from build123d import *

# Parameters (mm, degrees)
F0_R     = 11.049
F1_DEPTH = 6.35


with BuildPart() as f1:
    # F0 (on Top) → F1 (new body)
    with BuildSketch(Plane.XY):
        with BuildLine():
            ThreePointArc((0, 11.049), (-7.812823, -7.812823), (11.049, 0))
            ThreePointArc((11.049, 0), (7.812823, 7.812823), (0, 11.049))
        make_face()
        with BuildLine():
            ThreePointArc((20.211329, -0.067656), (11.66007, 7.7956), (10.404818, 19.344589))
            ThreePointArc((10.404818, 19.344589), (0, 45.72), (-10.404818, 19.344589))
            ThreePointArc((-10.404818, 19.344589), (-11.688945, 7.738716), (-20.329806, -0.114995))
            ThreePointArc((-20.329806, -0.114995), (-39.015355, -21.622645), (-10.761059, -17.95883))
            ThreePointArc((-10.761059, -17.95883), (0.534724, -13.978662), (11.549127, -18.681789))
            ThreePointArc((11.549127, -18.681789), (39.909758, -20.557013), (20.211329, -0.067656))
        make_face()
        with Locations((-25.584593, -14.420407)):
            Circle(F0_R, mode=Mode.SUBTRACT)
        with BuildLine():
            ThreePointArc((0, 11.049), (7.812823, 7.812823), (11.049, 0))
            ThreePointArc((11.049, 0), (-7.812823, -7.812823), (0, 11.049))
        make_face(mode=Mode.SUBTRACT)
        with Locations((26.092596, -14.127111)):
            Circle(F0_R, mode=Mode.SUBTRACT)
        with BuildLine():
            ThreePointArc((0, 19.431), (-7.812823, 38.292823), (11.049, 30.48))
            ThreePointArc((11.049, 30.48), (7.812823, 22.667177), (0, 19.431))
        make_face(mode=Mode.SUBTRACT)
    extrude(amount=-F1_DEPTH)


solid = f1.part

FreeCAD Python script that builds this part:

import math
import FreeCAD as App
import Part
import Sketcher

V = App.Vector
Q = App.Units.Quantity

doc = App.newDocument("Part")
body = doc.addObject("PartDesign::Body", "Body")

sketch1 = body.newObject("Sketcher::SketchObject", "Sketch")
sketch1.AttachmentSupport = (doc.getObject("XY_Plane"), [""])
sketch1.MapMode = "FlatFace"
sketch1.addGeometry(Part.ArcOfCircle(Part.Circle(V(26.396453, 15.239998, 0), V(0, 0, 1), 16.509998), math.radians(165.604583), math.radians(247.998618)), False)
sketch1.addGeometry(Part.ArcOfCircle(Part.Circle(V(0, 30.48, 0), V(0, 0, 1), 15.24), math.radians(-46.94259), math.radians(226.94259)), False)
sketch1.addGeometry(Part.ArcOfCircle(Part.Circle(V(-26.396454, 15.24, 0), V(0, 0, 1), 16.509999), math.radians(-68.44138), math.radians(14.395412)), False)
sketch1.addGeometry(Part.ArcOfCircle(Part.Circle(V(-25.584593, -14.420407, 0), V(0, 0, 1), 15.24), math.radians(69.830272), math.radians(346.574549)), False)
sketch1.addGeometry(Part.ArcOfCircle(Part.Circle(V(0.000001, -30.480002, 0), V(0, 0, 1), 16.510002), math.radians(45.61125), math.radians(130.676722)), False)
sketch1.addGeometry(Part.ArcOfCircle(Part.Circle(V(26.092596, -14.127111, 0), V(0, 0, 1), 15.24), math.radians(-162.610653), math.radians(112.700242)), False)
sketch1.addGeometry(Part.Circle(V(-25.584593, -14.420407, 0), V(0, 0, 1), 11.049), False)
sketch1.addGeometry(Part.ArcOfCircle(Part.Circle(V(0, 0, 0), V(0, 0, 1), 11.049), math.radians(89.999999), math.radians(360.000001)), False)
sketch1.addGeometry(Part.ArcOfCircle(Part.Circle(V(0.000001, 0.000001, 0), V(0, 0, 1), 11.048999), math.radians(-0.000003), math.radians(90.000003)), False)
sketch1.addGeometry(Part.Circle(V(26.092596, -14.127111, 0), V(0, 0, 1), 11.049), False)
sketch1.addGeometry(Part.ArcOfCircle(Part.Circle(V(0.000001, 30.479999, 0), V(0, 0, 1), 11.048999), math.radians(-90.000003), math.radians(0.000003)), False)
sketch1.addGeometry(Part.ArcOfCircle(Part.Circle(V(0, 30.48, 0), V(0, 0, 1), 11.049), math.radians(-0.000001), math.radians(270.000001)), False)
sketch1.addConstraint(Sketcher.Constraint("Coincident", 0, 1, 1, 1))
sketch1.addConstraint(Sketcher.Constraint("Coincident", 1, 2, 2, 2))
sketch1.addConstraint(Sketcher.Constraint("Coincident", 2, 1, 3, 1))
sketch1.addConstraint(Sketcher.Constraint("Coincident", 3, 2, 4, 2))
sketch1.addConstraint(Sketcher.Constraint("Coincident", 4, 1, 5, 1))
sketch1.addConstraint(Sketcher.Constraint("Coincident", 5, 2, 0, 2))
sketch1.addConstraint(Sketcher.Constraint("Coincident", 7, 1, 8, 2))
sketch1.addConstraint(Sketcher.Constraint("Coincident", 8, 1, 7, 2))
sketch1.addConstraint(Sketcher.Constraint("Coincident", 10, 1, 11, 2))
sketch1.addConstraint(Sketcher.Constraint("Coincident", 11, 1, 10, 2))
sketch1.addConstraint(Sketcher.Constraint("Coincident", 7, 3, -1, 1))
sketch1.addConstraint(Sketcher.Constraint("Coincident", 6, 3, 3, 3))
sketch1.addConstraint(Sketcher.Constraint("Coincident", 9, 3, 5, 3))
sketch1.addConstraint(Sketcher.Constraint("Coincident", 10, 3, 1, 3))
sketch1.addConstraint(Sketcher.Constraint("PointOnObject", 1, 3, -2))
sketch1.addConstraint(Sketcher.Constraint("PointOnObject", 4, 3, -2))
sketch1.addConstraint(Sketcher.Constraint("PointOnObject", 11, 3, -2))
sketch1.addConstraint(Sketcher.Constraint("PointOnObject", 7, 1, -2))
sketch1.addConstraint(Sketcher.Constraint("PointOnObject", 8, 1, -1))
sketch1.addConstraint(Sketcher.Constraint("PointOnObject", 10, 1, -2))
sketch1.addConstraint(Sketcher.Constraint("Radius", 1, Q("0.6 in")))
sketch1.addConstraint(Sketcher.Constraint("Radius", 3, Q("0.6 in")))
sketch1.addConstraint(Sketcher.Constraint("Radius", 5, Q("0.6 in")))
sketch1.addConstraint(Sketcher.Constraint("Diameter", 6, Q("0.87 in")))
sketch1.addConstraint(Sketcher.Constraint("Diameter", 9, Q("0.87 in")))
sketch1.addConstraint(Sketcher.Constraint("Radius", 0, Q("0.6499999 in")))
sketch1.addConstraint(Sketcher.Constraint("Radius", 2, Q("0.65 in")))
sketch1.addConstraint(Sketcher.Constraint("Radius", 4, Q("0.6500001 in")))
sketch1.addConstraint(Sketcher.Constraint("Radius", 7, Q("0.435 in")))
sketch1.addConstraint(Sketcher.Constraint("Radius", 8, Q("0.435 in")))
sketch1.addConstraint(Sketcher.Constraint("Radius", 10, Q("0.435 in")))
sketch1.addConstraint(Sketcher.Constraint("DistanceY", -1, 1, 0, 3, Q("0.5999999 in")))
sketch1.addConstraint(Sketcher.Constraint("DistanceY", -1, 1, 1, 3, Q("1.2 in")))
sketch1.addConstraint(Sketcher.Constraint("DistanceY", -1, 1, 2, 3, Q("0.6 in")))
sketch1.addConstraint(Sketcher.Constraint("DistanceY", 4, 3, -1, 1, Q("1.2000001 in")))
sketch1.addConstraint(Sketcher.Constraint("DistanceY", -1, 1, 11, 1, Q("1.2 in")))
sketch1.addConstraint(Sketcher.Constraint("DistanceY", 5, 3, -1, 1, 14.127111))
sketch1.addConstraint(Sketcher.Constraint("DistanceY", -1, 1, 0, 1, 19.344589))
sketch1.addConstraint(Sketcher.Constraint("DistanceX", 1, 2, -1, 1, 10.404818))
sketch1.addConstraint(Sketcher.Constraint("DistanceX", 3, 2, -1, 1, 10.761059))
sketch1.addConstraint(Sketcher.Constraint("DistanceY", 4, 1, -1, 1, 18.681789))
sketch1.addConstraint(Sketcher.Constraint("DistanceX", 2, 3, 3, 3, 0.811861))
pad1 = body.newObject("PartDesign::Pad", "Pad")
pad1.Profile = sketch1
pad1.Length = Q("0.25 in")
pad1.Reversed = True

doc.recompute()
